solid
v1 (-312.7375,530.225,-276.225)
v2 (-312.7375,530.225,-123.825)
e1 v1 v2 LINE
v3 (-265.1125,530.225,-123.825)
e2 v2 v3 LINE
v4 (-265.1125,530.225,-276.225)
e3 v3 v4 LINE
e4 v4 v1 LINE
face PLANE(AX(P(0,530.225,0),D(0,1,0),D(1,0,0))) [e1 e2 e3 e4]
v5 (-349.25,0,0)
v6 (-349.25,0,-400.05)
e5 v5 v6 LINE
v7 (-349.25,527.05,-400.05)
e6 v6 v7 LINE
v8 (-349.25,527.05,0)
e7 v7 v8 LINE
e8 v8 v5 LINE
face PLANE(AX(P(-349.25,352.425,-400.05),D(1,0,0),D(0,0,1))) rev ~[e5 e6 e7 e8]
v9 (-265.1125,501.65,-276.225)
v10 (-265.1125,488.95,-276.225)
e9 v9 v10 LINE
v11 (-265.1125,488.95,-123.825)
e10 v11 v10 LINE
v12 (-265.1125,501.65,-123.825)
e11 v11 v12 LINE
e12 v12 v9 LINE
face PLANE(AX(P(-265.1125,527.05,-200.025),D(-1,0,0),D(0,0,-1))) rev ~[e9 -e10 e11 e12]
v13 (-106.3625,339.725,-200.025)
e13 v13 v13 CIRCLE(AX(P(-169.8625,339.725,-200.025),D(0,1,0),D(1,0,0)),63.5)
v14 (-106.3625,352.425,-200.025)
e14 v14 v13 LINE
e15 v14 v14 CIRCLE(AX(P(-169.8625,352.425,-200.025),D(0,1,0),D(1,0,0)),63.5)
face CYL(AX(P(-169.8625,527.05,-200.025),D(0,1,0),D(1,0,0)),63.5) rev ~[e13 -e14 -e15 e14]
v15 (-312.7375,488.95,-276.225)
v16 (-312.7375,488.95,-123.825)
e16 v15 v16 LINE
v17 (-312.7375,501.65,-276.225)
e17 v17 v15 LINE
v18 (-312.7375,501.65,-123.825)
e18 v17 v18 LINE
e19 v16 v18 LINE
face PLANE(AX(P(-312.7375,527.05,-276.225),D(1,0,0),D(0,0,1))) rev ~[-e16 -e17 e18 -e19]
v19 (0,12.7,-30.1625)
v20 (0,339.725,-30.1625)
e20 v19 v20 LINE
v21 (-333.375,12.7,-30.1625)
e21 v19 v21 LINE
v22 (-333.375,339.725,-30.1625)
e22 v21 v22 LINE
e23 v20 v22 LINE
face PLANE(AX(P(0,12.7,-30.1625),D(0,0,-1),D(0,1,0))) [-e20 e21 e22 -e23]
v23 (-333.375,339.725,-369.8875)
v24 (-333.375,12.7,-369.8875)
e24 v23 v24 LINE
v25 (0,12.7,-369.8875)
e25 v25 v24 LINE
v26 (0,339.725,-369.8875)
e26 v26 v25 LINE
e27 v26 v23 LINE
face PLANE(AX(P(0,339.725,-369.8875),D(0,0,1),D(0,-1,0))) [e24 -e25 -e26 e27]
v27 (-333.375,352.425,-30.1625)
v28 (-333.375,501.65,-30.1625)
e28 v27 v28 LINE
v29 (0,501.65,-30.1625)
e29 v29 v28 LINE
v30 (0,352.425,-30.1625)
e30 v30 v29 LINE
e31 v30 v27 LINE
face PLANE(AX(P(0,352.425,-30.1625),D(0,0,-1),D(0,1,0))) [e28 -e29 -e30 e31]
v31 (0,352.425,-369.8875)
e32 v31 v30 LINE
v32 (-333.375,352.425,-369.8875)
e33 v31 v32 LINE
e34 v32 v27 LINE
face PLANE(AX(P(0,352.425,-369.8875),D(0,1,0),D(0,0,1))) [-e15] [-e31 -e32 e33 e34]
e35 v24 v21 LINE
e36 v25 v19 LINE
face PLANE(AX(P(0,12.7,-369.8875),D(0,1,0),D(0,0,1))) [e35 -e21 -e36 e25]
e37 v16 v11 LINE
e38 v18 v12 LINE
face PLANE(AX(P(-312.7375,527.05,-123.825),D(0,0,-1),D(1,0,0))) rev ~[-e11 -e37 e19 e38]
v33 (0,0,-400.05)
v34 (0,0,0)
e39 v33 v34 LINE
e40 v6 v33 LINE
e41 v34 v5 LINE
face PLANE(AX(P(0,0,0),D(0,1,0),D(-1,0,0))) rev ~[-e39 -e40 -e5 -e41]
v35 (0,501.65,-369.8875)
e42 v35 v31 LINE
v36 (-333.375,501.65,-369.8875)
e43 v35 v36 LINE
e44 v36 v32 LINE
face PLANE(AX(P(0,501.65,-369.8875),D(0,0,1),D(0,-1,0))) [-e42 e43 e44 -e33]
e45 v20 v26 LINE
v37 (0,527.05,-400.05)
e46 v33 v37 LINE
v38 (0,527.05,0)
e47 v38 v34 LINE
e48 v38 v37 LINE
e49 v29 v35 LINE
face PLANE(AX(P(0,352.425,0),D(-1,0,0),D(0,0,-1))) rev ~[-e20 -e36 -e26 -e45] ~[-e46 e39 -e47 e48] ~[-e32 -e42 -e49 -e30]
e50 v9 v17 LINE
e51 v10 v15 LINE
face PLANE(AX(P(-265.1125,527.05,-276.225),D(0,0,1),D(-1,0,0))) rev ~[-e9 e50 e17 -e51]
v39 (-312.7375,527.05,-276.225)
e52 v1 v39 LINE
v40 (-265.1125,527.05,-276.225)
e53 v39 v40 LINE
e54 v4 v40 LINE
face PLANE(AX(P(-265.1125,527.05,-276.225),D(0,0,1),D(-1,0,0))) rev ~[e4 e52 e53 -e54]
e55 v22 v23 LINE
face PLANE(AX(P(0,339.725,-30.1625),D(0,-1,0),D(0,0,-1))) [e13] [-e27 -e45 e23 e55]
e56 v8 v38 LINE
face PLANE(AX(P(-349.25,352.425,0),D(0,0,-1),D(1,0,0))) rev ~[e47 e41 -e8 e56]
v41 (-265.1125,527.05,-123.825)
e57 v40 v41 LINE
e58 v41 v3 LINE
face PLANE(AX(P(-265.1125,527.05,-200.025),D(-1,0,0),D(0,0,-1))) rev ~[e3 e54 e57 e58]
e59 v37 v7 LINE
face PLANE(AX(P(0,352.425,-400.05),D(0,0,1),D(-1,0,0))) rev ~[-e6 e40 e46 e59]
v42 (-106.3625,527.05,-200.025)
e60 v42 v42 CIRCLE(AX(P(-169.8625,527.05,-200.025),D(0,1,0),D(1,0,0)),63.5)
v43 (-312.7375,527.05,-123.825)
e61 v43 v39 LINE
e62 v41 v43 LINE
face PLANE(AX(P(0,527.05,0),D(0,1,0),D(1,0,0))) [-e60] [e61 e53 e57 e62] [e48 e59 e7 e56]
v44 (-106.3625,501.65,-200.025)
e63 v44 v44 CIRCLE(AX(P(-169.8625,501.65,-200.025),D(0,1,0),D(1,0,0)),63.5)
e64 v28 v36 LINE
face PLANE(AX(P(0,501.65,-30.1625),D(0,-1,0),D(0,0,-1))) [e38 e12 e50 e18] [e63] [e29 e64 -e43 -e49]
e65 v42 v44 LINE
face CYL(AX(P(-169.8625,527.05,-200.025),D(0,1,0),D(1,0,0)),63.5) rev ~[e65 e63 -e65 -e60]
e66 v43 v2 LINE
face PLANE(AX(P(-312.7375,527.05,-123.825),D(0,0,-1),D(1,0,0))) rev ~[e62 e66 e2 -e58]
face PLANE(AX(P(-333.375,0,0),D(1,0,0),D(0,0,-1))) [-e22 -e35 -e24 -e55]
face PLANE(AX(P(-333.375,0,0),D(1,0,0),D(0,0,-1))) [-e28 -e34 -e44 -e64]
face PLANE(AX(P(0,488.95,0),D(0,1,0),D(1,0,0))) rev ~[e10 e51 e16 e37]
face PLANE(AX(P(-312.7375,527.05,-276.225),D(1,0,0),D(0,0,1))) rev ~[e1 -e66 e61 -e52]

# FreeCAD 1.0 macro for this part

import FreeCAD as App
import Part
import Sketcher

V = App.Vector
Q = App.Units.Quantity

doc = App.newDocument("Part")
body = doc.addObject("PartDesign::Body", "Body")

sketch1 = body.newObject("Sketcher::SketchObject", "Sketch")
sketch1.AttachmentSupport = (doc.getObject("XZ_Plane"), [""])
sketch1.MapMode = "FlatFace"
sketch1.addGeometry([
    Part.LineSegment(V(-349, 0, 0), V(0, 0, 0)),
    Part.LineSegment(V(0, 0, 0), V(0, -400, 0)),
    Part.LineSegment(V(0, -400, 0), V(-349, -400, 0)),
    Part.LineSegment(V(-349, -400, 0), V(-349, 0, 0)),
], False)
sketch1.addConstraint([
    Sketcher.Constraint("Coincident", 0, 2, 1, 1),
    Sketcher.Constraint("Coincident", 1, 2, 2, 1),
    Sketcher.Constraint("Coincident", 2, 2, 3, 1),
    Sketcher.Constraint("Coincident", 3, 2, 0, 1),
    Sketcher.Constraint("Horizontal", 0),
    Sketcher.Constraint("Vertical", 1),
    Sketcher.Constraint("Horizontal", 2),
    Sketcher.Constraint("Vertical", 3),
    Sketcher.Constraint("Coincident", 0, 2, -1, 1),
    Sketcher.Constraint("DistanceX", 0, 1, 0, 2, Q("13.75 in")),
    Sketcher.Constraint("DistanceY", 1, 2, 1, 1, Q("15.75 in")),
])
pad1 = body.newObject("PartDesign::Pad", "Pad")
pad1.Profile = sketch1
pad1.Length = Q("13.875 in")
pad1.Reversed = True

sketch2 = body.newObject("Sketcher::SketchObject", "Sketch001")
sketch2.AttachmentSupport = (doc.getObject("YZ_Plane"), [""])
sketch2.MapMode = "FlatFace"
sketch2.addGeometry([
    Part.LineSegment(V(340, -370, 0), V(340, -30, 0)),
    Part.LineSegment(V(340, -30, 0), V(13, -30, 0)),
    Part.LineSegment(V(13, -30, 0), V(13, -370, 0)),
    Part.LineSegment(V(13, -370, 0), V(340, -370, 0)),
], False)
sketch2.addConstraint([
    Sketcher.Constraint("Coincident", 0, 2, 1, 1),
    Sketcher.Constraint("Coincident", 1, 2, 2, 1),
    Sketcher.Constraint("Coincident", 2, 2, 3, 1),
    Sketcher.Constraint("Coincident", 3, 2, 0, 1),
    Sketcher.Constraint("Vertical", 0),
    Sketcher.Constraint("Horizontal", 1),
    Sketcher.Constraint("Vertical", 2),
    Sketcher.Constraint("Horizontal", 3),
    Sketcher.Constraint("DistanceX", -1, 1, 1, 2, Q("0.5 in")),
    Sketcher.Constraint("DistanceY", 0, 1, 0, 2, Q("13.375 in")),
    Sketcher.Constraint("DistanceX", -1, 1, 0, 2, Q("13.375 in")),
    Sketcher.Constraint("DistanceY", 0, 2, -1, 1, Q("1.1875 in")),
])
pocket1 = body.newObject("PartDesign::Pocket", "Pocket")
pocket1.Profile = sketch2
pocket1.Length = Q("13.125 in")

sketch3 = body.newObject("Sketcher::SketchObject", "Sketch002")
sketch3.AttachmentSupport = (doc.getObject("XZ_Plane"), [""])
sketch3.MapMode = "FlatFace"
sketch3.AttachmentOffset = App.Placement(V(0, 0, -13.875 * 25.4), App.Rotation())
sketch3.addGeometry([
    Part.LineSegment(V(0, 0, 0), V(0, -400, 0)),
    Part.LineSegment(V(0, -400, 0), V(-349, -400, 0)),
    Part.LineSegment(V(-349, -400, 0), V(-349, 0, 0)),
    Part.LineSegment(V(-349, 0, 0), V(0, 0, 0)),
], False)
sketch3.addConstraint([
    Sketcher.Constraint("Coincident", 0, 2, 1, 1),
    Sketcher.Constraint("Coincident", 1, 2, 2, 1),
    Sketcher.Constraint("Coincident", 2, 2, 3, 1),
    Sketcher.Constraint("Coincident", 3, 2, 0, 1),
    Sketcher.Constraint("Vertical", 0),
    Sketcher.Constraint("Horizontal", 1),
    Sketcher.Constraint("Vertical", 2),
    Sketcher.Constraint("Horizontal", 3),
    Sketcher.Constraint("Coincident", 3, 2, -1, 1),
    Sketcher.Constraint("DistanceX", 1, 2, 1, 1, Q("13.75 in")),
    Sketcher.Constraint("DistanceY", 0, 2, 0, 1, Q("15.75 in")),
])
pad2 = body.newObject("PartDesign::Pad", "Pad001")
pad2.Profile = sketch3
pad2.Length = Q("6.875 in")
pad2.Reversed = True

sketch4 = body.newObject("Sketcher::SketchObject", "Sketch003")
sketch4.AttachmentSupport = (doc.getObject("YZ_Plane"), [""])
sketch4.MapMode = "FlatFace"
sketch4.addGeometry([
    Part.LineSegment(V(502, -370, 0), V(502, -30, 0)),
    Part.LineSegment(V(502, -30, 0), V(352, -30, 0)),
    Part.LineSegment(V(352, -30, 0), V(352, -370, 0)),
    Part.LineSegment(V(352, -370, 0), V(502, -370, 0)),
], False)
sketch4.addConstraint([
    Sketcher.Constraint("Coincident", 0, 2, 1, 1),
    Sketcher.Constraint("Coincident", 1, 2, 2, 1),
    Sketcher.Constraint("Coincident", 2, 2, 3, 1),
    Sketcher.Constraint("Coincident", 3, 2, 0, 1),
    Sketcher.Constraint("Vertical", 0),
    Sketcher.Constraint("Horizontal", 1),
    Sketcher.Constraint("Vertical", 2),
    Sketcher.Constraint("Horizontal", 3),
    Sketcher.Constraint("DistanceX", 1, 2, 1, 1, Q("5.875 in")),
    Sketcher.Constraint("DistanceY", 0, 1, 0, 2, Q("13.375 in")),
    Sketcher.Constraint("DistanceX", -1, 1, 0, 2, Q("19.75 in")),
    Sketcher.Constraint("DistanceY", 0, 2, -1, 1, Q("1.1875 in")),
])
pocket2 = body.newObject("PartDesign::Pocket", "Pocket001")
pocket2.Profile = sketch4
pocket2.Length = Q("13.125 in")

sketch5 = body.newObject("Sketcher::SketchObject", "Sketch004")
sketch5.AttachmentSupport = (doc.getObject("XZ_Plane"), [""])
sketch5.MapMode = "FlatFace"
sketch5.AttachmentOffset = App.Placement(V(0, 0, -20.75 * 25.4), App.Rotation())
sketch5.addGeometry(Part.Circle(V(-170, -200, 0), V(0, 0, 1), 64), False)
sketch5.addConstraint([
    Sketcher.Constraint("Diameter", 0, Q("5 in")),
    Sketcher.Constraint("DistanceX", 0, 3, -1, 1, Q("6.6875 in")),
    Sketcher.Constraint("DistanceY", 0, 3, -1, 1, Q("7.875 in")),
])
pocket3 = body.newObject("PartDesign::Pocket", "Pocket002")
pocket3.Profile = sketch5
pocket3.Length = Q("7.625 in")
pocket3.Reversed = True

sketch6 = body.newObject("Sketcher::SketchObject", "Sketch005")
sketch6.AttachmentSupport = (doc.getObject("XZ_Plane"), [""])
sketch6.MapMode = "FlatFace"
sketch6.AttachmentOffset = App.Placement(V(0, 0, -20.75 * 25.4), App.Rotation())
sketch6.addGeometry([
    Part.LineSegment(V(-313, -276, 0), V(-313, -124, 0)),
    Part.LineSegment(V(-313, -124, 0), V(-265, -124, 0)),
    Part.LineSegment(V(-265, -124, 0), V(-265, -276, 0)),
    Part.LineSegment(V(-265, -276, 0), V(-313, -276, 0)),
], False)
sketch6.addConstraint([
    Sketcher.Constraint("Coincident", 0, 2, 1, 1),
    Sketcher.Constraint("Coincident", 1, 2, 2, 1),
    Sketcher.Constraint("Coincident", 2, 2, 3, 1),
    Sketcher.Constraint("Coincident", 3, 2, 0, 1),
    Sketcher.Constraint("Vertical", 0),
    Sketcher.Constraint("Horizontal", 1),
    Sketcher.Constraint("Vertical", 2),
    Sketcher.Constraint("Horizontal", 3),
    Sketcher.Constraint("DistanceY", 0, 1, 0, 2, Q("6 in")),
    Sketcher.Constraint("DistanceX", 1, 1, 1, 2, Q("1.875 in")),
    Sketcher.Constraint("DistanceY", 0, 2, -1, 1, Q("4.875 in")),
    Sketcher.Constraint("DistanceX", 1, 2, -1, 1, Q("10.4375 in")),
])
pad3 = body.newObject("PartDesign::Pad", "Pad002")
pad3.Profile = sketch6
pad3.Type = "TwoLengths"
pad3.Length = Q("0.125 in")
pad3.Length2 = Q("1.5 in")
pad3.Reversed = True

doc.recompute()
